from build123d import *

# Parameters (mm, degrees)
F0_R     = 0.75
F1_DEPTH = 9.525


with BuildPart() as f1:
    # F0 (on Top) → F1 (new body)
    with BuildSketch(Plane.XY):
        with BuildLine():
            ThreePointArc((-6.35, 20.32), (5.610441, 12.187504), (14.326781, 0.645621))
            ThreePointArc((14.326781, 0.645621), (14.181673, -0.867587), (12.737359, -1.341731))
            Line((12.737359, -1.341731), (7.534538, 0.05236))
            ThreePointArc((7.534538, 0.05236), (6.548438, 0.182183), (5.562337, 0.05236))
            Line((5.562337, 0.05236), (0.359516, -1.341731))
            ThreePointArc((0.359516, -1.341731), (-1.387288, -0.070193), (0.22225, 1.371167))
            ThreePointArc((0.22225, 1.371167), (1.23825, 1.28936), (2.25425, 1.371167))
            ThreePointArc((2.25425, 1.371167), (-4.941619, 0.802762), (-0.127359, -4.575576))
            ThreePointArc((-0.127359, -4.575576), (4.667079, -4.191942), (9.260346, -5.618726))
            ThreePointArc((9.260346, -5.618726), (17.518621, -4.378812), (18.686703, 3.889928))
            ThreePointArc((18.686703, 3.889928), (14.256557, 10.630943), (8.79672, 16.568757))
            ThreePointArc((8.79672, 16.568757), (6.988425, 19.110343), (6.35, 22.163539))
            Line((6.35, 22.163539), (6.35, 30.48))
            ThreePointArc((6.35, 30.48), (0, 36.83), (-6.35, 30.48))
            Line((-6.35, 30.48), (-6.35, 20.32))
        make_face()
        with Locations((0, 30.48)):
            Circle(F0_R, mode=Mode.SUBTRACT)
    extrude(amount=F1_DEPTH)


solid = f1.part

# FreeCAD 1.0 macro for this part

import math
import FreeCAD as App
import Part
import Sketcher

V = App.Vector
Q = App.Units.Quantity

doc = App.newDocument("Part")
params = doc.addObject("Spreadsheet::Sheet", "Params")
for row, (alias, value) in enumerate([
    ("sketch1_radius", "0.4999998 in"),
    ("sketch1_radius2", "0.2499999 in"),
    ("sketch1_radius3", "0.25 in"),
    ("sketch1_height", "0.4 in"),
    ("sketch1_radius4", "0.275 in"),
    ("pad1_length", "0.375 in"),
], start=1):
    params.set(f"A{row}", alias)
    params.set(f"B{row}", "=" + value)
    params.setAlias(f"B{row}", alias)

body = doc.addObject("PartDesign::Body", "Body")

# Sketch on XY plane
sketch1 = doc.addObject("Sketcher::SketchObject", "Sketch")
body.addObject(sketch1)
sketch1.AttachmentSupport = (doc.XY_Plane, [""])
sketch1.MapMode = "FlatFace"
sketch1.addGeometry([
    Part.ArcOfCircle(Part.Circle(V(-25, -20, 0), V(0, 0, 1), 44.5), math.radians(28), math.radians(65)),  # 0
    Part.ArcOfCircle(Part.Circle(V(13.1, 0, 0), V(0, 0, 1), 1.4), math.radians(-105), math.radians(28)),  # 1
    Part.LineSegment(V(12.7, -1.3, 0), V(7.5, 0.1, 0)),  # 2
    Part.ArcOfCircle(Part.Circle(V(6.5, -3.6, 0), V(0, 0, 1), 3.8), math.radians(75), math.radians(105)),  # 3
    Part.LineSegment(V(5.6, 0.1, 0), V(0.4, -1.3, 0)),  # 4
    Part.ArcOfCircle(Part.Circle(V(0, 0, 0), V(0, 0, 1), 1.4), math.radians(81), math.radians(285)),  # 5
    Part.ArcOfCircle(Part.Circle(V(1.2, 7.6, 0), V(0, 0, 1), 6.3), math.radians(-99.21), math.radians(-80.79)),  # 6
    Part.ArcOfCircle(Part.Circle(V(-1.2, -0.7, 0), V(0, 0, 1), 4), math.radians(31), math.radians(285)),  # 7
    Part.ArcOfCircle(Part.Circle(V(3.3, -16.8, 0), V(0, 0, 1), 12.7), math.radians(62), math.radians(105)),  # 8
    Part.ArcOfCircle(Part.Circle(V(12.6, 0.5, 0), V(0, 0, 1), 7), math.radians(-118), math.radians(29)),  # 9
    Part.ArcOfCircle(Part.Circle(V(-25, -20, 0), V(0, 0, 1), 49.8), math.radians(28.67), math.radians(47.24)),  # 10
    Part.ArcOfCircle(Part.Circle(V(14, 22.2, 0), V(0, 0, 1), 7.6), math.radians(-180), math.radians(-133)),  # 11
    Part.LineSegment(V(6.3, 22.2, 0), V(6.3, 30.5, 0)),  # 12
    Part.ArcOfCircle(Part.Circle(V(0, 30.5, 0), V(0, 0, 1), 6.3), math.radians(0), math.radians(180)),  # 13
    Part.LineSegment(V(-6.3, 30.5, 0), V(-6.3, 20.3, 0)),  # 14
    Part.Circle(V(0, 30.5, 0), V(0, 0, 1), 0.8),  # 15
], False)
sketch1.addConstraint([
    Sketcher.Constraint("Tangent", 0, 1, 1, 2),
    Sketcher.Constraint("Tangent", 1, 1, 2, 1),
    Sketcher.Constraint("Tangent", 2, 2, 3, 1),
    Sketcher.Constraint("Tangent", 3, 2, 4, 1),
    Sketcher.Constraint("Tangent", 4, 2, 5, 2),
    Sketcher.Constraint("Tangent", 5, 1, 6, 1),
    Sketcher.Constraint("Coincident", 6, 2, 7, 1),
    Sketcher.Constraint("Tangent", 7, 2, 8, 2),
    Sketcher.Constraint("Tangent", 8, 1, 9, 1),
    Sketcher.Constraint("Tangent", 9, 2, 10, 1),
    Sketcher.Constraint("Tangent", 10, 2, 11, 2),
    Sketcher.Constraint("Tangent", 11, 1, 12, 1),
    Sketcher.Constraint("Tangent", 12, 2, 13, 1),
    Sketcher.Constraint("Tangent", 13, 2, 14, 1),
    Sketcher.Constraint("Coincident", 14, 2, 0, 2),
    Sketcher.Constraint("Vertical", 12),
    Sketcher.Constraint("Vertical", 14),
    Sketcher.Constraint("Coincident", 5, 3, -1, 1),
    Sketcher.Constraint("Coincident", 15, 3, 13, 3),
    Sketcher.Constraint("Equal", 1, 5),
    Sketcher.Constraint("PointOnObject", 1, 3, -1),
    Sketcher.Constraint("PointOnObject", 13, 3, -2),
    Sketcher.Constraint("Horizontal", 2, 2, 3, 2),
    Sketcher.Constraint("Horizontal", 5, 1, 6, 2),
    Sketcher.Constraint("Radius", 8, Q("0.4999998 in")),
    Sketcher.Constraint("Radius", 6, Q("0.2499999 in")),
    Sketcher.Constraint("Radius", 13, Q("0.25 in")),
    Sketcher.Constraint("DistanceY", 14, 2, 14, 1, Q("0.4 in")),
    Sketcher.Constraint("Angle", 2, Q("165.000007 deg")),
    Sketcher.Constraint("Radius", 9, Q("0.275 in")),
    Sketcher.Constraint("DistanceY", -1, 1, 13, 3, Q("1.2 in")),
    Sketcher.Constraint("Diameter", 15, Q("1.5 mm")),
    Sketcher.Constraint("DistanceX", 5, 1, 6, 3, Q("0.04 in")),
    Sketcher.Constraint("DistanceX", -1, 1, 1, 3, Q("0.515625 in")),
    Sketcher.Constraint("Radius", 3, Q("3.809988 mm")),
    Sketcher.Constraint("Radius", 0, Q("44.450007 mm")),
    Sketcher.Constraint("Radius", 1, Q("1.389063 mm")),
    Sketcher.Constraint("Radius", 7, Q("4.027336 mm")),
    Sketcher.Constraint("Radius", 10, Q("49.825464 mm")),
    Sketcher.Constraint("Radius", 11, Q("7.620008 mm")),
    Sketcher.Constraint("DistanceY", 12, 1, 12, 2, Q("8.316461 mm")),
    Sketcher.Constraint("DistanceX", 7, 3, 3, 3, Q("7.751401 mm")),
    Sketcher.Constraint("DistanceX", 9, 3, 1, 1, Q("0.1793 mm")),
    Sketcher.Constraint("DistanceY", 8, 3, -1, 1, Q("16.814251 mm")),
])
sketch1.setExpression("Constraints[24]", "Params.sketch1_radius")
sketch1.setExpression("Constraints[25]", "Params.sketch1_radius2")
sketch1.setExpression("Constraints[26]", "Params.sketch1_radius3")
sketch1.setExpression("Constraints[27]", "Params.sketch1_height")
sketch1.setExpression("Constraints[29]", "Params.sketch1_radius4")
pad1 = doc.addObject("PartDesign::Pad", "Pad")
body.addObject(pad1)
pad1.Profile = sketch1
pad1.setExpression("Length", "Params.pad1_length")

doc.recompute()
